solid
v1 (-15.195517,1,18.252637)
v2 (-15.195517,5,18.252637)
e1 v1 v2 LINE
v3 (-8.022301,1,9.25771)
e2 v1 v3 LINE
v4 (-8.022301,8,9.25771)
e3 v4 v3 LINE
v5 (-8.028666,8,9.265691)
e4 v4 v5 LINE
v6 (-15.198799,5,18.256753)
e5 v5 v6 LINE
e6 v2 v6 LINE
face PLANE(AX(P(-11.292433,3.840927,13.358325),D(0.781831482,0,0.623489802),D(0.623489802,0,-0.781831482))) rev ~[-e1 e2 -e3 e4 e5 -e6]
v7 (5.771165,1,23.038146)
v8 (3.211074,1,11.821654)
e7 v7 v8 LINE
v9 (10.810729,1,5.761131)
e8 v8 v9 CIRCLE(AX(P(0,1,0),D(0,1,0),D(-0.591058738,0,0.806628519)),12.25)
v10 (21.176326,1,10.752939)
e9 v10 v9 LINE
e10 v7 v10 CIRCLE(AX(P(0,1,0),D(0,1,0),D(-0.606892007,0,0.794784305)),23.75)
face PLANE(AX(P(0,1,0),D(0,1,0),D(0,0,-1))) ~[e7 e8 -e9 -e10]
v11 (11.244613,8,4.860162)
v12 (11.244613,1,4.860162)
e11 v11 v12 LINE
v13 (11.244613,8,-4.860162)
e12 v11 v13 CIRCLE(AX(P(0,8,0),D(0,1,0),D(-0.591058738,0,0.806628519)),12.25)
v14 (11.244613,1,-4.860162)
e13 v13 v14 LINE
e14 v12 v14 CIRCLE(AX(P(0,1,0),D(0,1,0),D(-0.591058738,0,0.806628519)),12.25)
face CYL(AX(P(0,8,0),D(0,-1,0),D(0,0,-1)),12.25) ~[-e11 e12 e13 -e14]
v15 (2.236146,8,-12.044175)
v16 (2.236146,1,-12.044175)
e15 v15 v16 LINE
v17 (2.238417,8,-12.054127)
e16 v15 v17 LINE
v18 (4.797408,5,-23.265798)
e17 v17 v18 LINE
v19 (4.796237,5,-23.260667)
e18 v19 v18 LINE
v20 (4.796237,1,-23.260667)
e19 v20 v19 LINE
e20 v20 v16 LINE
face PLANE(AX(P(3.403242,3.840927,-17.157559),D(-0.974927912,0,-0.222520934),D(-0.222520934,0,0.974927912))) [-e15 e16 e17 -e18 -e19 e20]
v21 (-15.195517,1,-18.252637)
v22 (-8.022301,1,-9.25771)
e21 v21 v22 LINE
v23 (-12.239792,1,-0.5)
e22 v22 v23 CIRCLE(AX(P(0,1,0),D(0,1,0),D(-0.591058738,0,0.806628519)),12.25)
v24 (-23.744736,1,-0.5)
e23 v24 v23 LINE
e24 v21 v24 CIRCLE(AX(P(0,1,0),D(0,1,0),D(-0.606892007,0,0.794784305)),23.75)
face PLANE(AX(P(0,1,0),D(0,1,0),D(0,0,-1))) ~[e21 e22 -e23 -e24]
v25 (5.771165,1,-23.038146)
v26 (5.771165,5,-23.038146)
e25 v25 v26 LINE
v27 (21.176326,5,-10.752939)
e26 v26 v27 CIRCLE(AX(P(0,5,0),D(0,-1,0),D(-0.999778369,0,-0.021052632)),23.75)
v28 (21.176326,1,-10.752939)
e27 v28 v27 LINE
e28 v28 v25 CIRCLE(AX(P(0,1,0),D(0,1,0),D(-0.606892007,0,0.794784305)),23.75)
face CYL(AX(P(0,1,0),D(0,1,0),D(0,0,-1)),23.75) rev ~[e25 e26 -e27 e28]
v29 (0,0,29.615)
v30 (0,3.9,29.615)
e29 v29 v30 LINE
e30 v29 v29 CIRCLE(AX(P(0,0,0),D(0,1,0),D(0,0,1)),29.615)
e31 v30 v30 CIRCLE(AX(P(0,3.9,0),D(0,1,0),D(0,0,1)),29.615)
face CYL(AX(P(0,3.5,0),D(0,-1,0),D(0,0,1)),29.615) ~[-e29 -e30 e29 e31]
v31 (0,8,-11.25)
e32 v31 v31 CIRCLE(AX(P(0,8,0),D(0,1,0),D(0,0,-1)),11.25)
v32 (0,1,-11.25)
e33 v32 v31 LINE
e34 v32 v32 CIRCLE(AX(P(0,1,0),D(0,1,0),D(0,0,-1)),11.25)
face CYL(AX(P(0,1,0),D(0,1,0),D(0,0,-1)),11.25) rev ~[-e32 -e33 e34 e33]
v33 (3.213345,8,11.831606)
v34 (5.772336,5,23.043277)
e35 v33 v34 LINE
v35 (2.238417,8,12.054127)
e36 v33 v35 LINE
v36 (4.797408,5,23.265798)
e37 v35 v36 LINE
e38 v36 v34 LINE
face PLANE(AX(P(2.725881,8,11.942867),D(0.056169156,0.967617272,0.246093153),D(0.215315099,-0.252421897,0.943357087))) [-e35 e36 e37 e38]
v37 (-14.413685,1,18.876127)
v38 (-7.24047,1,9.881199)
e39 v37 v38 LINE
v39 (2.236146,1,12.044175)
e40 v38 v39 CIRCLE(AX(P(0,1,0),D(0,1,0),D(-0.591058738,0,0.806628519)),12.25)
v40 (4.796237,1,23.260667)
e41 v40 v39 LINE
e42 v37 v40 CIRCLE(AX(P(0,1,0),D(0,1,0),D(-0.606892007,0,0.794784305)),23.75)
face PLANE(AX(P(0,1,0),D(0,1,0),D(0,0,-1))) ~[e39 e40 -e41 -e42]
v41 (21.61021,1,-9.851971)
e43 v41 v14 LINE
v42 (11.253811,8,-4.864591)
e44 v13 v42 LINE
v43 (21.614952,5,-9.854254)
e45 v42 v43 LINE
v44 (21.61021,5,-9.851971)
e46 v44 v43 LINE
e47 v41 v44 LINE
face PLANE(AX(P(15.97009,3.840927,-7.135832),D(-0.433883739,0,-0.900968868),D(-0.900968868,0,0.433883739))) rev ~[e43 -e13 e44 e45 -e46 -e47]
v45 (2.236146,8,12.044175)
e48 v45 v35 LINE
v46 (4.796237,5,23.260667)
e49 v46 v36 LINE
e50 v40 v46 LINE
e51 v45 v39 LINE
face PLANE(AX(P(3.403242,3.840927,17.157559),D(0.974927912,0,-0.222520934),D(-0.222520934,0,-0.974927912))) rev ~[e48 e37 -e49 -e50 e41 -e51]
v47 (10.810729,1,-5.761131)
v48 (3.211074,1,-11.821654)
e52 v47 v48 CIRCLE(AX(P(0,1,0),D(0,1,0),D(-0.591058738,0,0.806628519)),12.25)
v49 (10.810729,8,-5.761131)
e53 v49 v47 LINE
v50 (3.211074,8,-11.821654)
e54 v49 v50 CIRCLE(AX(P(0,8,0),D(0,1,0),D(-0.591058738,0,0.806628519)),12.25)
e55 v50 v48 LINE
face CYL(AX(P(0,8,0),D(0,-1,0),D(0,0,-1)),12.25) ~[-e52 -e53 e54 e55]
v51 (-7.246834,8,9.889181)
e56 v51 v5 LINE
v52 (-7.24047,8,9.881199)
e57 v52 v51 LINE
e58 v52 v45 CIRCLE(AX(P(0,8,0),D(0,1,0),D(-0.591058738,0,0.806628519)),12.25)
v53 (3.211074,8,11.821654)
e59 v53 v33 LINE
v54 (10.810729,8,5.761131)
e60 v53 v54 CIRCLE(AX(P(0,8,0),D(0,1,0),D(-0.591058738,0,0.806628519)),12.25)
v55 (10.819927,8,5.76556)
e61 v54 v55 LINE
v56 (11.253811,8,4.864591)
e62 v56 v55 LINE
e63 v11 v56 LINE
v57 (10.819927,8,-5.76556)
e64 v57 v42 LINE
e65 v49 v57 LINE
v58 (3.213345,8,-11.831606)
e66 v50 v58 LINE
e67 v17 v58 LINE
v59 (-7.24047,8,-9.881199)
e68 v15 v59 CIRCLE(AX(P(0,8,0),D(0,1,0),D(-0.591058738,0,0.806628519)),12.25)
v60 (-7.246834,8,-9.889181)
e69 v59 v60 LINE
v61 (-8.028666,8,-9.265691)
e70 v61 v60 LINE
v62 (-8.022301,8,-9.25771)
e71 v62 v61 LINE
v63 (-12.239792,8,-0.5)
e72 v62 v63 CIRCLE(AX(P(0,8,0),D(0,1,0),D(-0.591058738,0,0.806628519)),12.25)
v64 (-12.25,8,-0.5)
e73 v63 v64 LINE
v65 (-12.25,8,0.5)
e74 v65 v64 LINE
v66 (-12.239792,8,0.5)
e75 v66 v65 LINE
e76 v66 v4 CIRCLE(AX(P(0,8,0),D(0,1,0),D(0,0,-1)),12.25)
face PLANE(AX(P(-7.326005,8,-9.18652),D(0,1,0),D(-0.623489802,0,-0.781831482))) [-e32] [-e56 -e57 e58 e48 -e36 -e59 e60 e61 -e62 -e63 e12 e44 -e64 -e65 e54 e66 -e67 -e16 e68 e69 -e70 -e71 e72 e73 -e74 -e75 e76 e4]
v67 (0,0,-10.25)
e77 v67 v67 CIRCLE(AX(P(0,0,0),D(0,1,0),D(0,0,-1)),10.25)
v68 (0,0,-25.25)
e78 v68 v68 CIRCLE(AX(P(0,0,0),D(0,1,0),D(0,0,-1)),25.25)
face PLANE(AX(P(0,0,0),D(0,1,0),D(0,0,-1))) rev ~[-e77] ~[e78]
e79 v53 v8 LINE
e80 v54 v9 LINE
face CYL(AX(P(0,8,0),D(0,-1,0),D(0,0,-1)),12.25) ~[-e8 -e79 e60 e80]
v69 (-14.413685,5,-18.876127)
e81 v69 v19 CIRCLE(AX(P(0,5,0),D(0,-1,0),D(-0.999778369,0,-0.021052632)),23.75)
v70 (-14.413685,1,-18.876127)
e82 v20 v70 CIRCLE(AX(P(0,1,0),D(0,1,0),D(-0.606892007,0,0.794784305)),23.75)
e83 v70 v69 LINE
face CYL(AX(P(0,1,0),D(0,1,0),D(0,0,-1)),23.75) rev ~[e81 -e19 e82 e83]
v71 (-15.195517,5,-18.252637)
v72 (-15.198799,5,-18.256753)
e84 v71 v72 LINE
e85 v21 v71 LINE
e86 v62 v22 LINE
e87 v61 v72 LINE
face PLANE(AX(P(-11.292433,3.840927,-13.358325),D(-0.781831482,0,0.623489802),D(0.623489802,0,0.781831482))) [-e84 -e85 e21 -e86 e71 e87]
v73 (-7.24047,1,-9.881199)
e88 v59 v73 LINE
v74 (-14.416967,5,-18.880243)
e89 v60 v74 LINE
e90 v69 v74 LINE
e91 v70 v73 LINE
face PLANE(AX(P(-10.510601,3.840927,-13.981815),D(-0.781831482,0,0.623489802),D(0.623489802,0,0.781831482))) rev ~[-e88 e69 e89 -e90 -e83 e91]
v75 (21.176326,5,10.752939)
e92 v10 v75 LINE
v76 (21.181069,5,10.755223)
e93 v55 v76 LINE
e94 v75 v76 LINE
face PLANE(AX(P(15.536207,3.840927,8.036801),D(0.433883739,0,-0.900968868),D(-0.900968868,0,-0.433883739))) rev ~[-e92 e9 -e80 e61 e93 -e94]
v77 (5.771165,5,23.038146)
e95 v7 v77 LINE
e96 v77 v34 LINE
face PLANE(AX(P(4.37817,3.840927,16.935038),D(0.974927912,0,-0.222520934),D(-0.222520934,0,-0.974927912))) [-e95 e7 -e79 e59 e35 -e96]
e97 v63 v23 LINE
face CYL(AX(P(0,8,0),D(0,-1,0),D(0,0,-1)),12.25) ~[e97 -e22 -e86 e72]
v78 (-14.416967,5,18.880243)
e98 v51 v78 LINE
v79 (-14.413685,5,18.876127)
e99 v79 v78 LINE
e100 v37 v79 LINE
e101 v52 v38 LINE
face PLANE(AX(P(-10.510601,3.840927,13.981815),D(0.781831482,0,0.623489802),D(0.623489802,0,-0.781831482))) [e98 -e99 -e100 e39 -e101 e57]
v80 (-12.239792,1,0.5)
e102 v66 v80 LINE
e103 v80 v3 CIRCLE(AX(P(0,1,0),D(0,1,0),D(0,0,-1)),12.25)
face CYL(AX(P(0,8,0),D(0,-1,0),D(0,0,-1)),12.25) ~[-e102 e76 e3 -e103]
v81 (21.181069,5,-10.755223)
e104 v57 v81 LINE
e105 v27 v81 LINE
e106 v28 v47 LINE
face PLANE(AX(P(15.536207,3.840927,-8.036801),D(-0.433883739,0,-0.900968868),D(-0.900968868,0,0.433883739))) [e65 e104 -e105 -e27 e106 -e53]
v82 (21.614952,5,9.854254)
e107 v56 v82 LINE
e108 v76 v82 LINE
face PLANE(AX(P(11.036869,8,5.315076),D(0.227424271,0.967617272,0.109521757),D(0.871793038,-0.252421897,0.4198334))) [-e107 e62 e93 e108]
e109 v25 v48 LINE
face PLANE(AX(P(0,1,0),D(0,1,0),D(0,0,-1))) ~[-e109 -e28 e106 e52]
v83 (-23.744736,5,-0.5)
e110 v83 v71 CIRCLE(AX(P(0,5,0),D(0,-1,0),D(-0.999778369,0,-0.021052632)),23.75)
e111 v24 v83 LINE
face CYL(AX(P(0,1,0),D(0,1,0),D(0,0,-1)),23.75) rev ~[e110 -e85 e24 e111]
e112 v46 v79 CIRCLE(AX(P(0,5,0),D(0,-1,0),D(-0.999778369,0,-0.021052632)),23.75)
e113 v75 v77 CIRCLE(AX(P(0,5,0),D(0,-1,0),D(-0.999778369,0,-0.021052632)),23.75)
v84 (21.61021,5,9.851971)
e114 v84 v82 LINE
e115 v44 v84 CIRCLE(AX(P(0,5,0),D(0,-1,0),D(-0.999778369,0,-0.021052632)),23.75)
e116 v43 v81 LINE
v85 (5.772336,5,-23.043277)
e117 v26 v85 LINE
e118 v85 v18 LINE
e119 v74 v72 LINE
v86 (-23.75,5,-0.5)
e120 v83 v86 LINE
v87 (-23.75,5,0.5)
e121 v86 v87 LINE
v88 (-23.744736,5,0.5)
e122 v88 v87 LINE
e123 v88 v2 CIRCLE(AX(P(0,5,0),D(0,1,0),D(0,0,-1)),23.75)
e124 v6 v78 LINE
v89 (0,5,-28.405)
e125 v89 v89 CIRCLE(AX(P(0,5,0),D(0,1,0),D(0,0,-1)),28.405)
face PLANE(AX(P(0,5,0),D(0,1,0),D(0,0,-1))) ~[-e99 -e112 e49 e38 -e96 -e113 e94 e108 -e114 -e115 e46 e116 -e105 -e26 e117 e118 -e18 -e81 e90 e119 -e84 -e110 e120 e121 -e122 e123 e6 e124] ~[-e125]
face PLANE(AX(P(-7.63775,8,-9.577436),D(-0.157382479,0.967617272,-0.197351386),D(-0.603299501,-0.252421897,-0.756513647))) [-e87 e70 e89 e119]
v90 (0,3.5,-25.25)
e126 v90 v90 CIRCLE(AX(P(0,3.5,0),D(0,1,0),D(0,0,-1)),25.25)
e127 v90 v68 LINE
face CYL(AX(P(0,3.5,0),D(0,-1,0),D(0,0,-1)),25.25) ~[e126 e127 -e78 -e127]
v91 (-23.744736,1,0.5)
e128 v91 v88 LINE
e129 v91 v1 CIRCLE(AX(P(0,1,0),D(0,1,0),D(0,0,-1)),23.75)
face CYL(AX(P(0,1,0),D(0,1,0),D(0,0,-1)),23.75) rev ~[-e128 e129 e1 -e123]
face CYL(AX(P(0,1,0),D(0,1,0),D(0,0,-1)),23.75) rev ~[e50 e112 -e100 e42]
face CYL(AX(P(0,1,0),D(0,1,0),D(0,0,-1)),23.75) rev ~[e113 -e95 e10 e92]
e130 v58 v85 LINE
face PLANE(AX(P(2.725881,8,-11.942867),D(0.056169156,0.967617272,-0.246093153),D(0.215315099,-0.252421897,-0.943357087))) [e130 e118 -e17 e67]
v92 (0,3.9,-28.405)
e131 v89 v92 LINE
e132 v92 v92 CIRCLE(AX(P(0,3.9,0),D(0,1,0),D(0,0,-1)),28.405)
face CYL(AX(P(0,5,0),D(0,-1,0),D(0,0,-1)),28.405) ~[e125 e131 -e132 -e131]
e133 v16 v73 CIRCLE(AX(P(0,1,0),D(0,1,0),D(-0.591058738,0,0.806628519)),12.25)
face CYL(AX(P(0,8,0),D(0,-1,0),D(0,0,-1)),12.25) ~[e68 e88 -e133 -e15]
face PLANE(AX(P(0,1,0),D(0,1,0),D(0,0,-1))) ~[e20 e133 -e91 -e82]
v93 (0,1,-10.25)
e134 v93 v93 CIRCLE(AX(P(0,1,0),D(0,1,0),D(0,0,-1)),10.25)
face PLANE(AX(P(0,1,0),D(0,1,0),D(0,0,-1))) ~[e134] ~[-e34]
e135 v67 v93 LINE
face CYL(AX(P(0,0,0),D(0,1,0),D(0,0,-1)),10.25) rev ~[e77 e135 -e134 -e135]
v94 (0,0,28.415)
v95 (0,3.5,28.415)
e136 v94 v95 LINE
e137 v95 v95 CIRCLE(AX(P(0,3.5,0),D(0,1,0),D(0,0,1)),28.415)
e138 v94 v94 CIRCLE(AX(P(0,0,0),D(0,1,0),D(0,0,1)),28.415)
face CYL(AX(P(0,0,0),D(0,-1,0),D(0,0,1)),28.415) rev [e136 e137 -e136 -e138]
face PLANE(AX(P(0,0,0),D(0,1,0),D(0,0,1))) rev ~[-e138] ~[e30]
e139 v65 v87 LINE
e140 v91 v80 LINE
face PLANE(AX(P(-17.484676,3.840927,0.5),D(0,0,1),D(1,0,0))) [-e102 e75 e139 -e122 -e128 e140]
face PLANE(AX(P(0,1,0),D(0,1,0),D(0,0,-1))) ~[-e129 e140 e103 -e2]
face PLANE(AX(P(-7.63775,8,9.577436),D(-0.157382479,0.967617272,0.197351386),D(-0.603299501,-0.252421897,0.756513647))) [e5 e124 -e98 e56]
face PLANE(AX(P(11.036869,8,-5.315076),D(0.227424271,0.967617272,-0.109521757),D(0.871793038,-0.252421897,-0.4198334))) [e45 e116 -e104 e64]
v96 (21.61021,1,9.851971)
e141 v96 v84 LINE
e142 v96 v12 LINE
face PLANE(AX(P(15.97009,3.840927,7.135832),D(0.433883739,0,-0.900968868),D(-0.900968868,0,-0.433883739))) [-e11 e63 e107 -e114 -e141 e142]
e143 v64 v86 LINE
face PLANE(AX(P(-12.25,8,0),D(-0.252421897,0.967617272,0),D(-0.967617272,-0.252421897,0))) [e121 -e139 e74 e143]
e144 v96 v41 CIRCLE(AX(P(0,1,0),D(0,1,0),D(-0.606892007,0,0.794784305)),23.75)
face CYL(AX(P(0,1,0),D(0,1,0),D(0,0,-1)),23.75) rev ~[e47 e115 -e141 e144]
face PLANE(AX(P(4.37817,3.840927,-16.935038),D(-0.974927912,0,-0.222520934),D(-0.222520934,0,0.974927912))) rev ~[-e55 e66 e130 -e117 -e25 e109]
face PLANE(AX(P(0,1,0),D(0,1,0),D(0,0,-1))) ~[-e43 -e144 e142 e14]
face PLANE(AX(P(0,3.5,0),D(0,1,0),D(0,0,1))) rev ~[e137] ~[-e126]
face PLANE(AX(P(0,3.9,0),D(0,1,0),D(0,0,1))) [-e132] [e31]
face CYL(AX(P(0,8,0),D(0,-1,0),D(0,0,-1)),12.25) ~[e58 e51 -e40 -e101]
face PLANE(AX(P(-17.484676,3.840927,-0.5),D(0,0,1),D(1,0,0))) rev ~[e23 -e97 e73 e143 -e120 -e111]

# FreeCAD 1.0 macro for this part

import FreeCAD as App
import Part
import Sketcher
Q = App.Units.Quantity

doc = App.newDocument("Part")
body = doc.addObject("PartDesign::Body", "Body")

# Sketch on XY plane
sketch1 = doc.addObject("Sketcher::SketchObject", "Sketch")
body.addObject(sketch1)
sketch1.AttachmentSupport = (doc.XY_Plane, [""])
sketch1.MapMode = "FlatFace"
sketch1.addGeometry(Part.LineSegment(App.Vector(-11.2, 8, 0), App.Vector(-12.2, 8, 0)), False)
sketch1.addGeometry(Part.LineSegment(App.Vector(-12.2, 8, 0), App.Vector(-12.2, 1, 0)), False)
sketch1.addGeometry(Part.LineSegment(App.Vector(-12.2, 1, 0), App.Vector(-23.8, 1, 0)), False)
sketch1.addGeometry(Part.LineSegment(App.Vector(-23.8, 1, 0), App.Vector(-23.8, 5, 0)), False)
sketch1.addGeometry(Part.LineSegment(App.Vector(-23.8, 5, 0), App.Vector(-28.4, 5, 0)), False)
sketch1.addGeometry(Part.LineSegment(App.Vector(-28.4, 5, 0), App.Vector(-28.4, 3.5, 0)), False)
sketch1.addGeometry(Part.LineSegment(App.Vector(-28.4, 3.5, 0), App.Vector(-25.2, 3.5, 0)), False)
sketch1.addGeometry(Part.LineSegment(App.Vector(-25.2, 3.5, 0), App.Vector(-25.2, 0, 0)), False)
sketch1.addGeometry(Part.LineSegment(App.Vector(-25.2, 0, 0), App.Vector(-10.2, 0, 0)), False)
sketch1.addGeometry(Part.LineSegment(App.Vector(-10.2, 0, 0), App.Vector(-10.2, 1, 0)), False)
sketch1.addGeometry(Part.LineSegment(App.Vector(-10.2, 1, 0), App.Vector(-11.2, 1, 0)), False)
sketch1.addGeometry(Part.LineSegment(App.Vector(-11.2, 1, 0), App.Vector(-11.2, 8, 0)), False)
sketch1.addConstraint(Sketcher.Constraint("Coincident", 0, 2, 1, 1))
sketch1.addConstraint(Sketcher.Constraint("Coincident", 1, 2, 2, 1))
sketch1.addConstraint(Sketcher.Constraint("Coincident", 2, 2, 3, 1))
sketch1.addConstraint(Sketcher.Constraint("Coincident", 3, 2, 4, 1))
sketch1.addConstraint(Sketcher.Constraint("Coincident", 4, 2, 5, 1))
sketch1.addConstraint(Sketcher.Constraint("Coincident", 5, 2, 6, 1))
sketch1.addConstraint(Sketcher.Constraint("Coincident", 6, 2, 7, 1))
sketch1.addConstraint(Sketcher.Constraint("Coincident", 7, 2, 8, 1))
sketch1.addConstraint(Sketcher.Constraint("Coincident", 8, 2, 9, 1))
sketch1.addConstraint(Sketcher.Constraint("Coincident", 9, 2, 10, 1))
sketch1.addConstraint(Sketcher.Constraint("Coincident", 10, 2, 11, 1))
sketch1.addConstraint(Sketcher.Constraint("Coincident", 11, 2, 0, 1))
sketch1.addConstraint(Sketcher.Constraint("Horizontal", 0))
sketch1.addConstraint(Sketcher.Constraint("Vertical", 1))
sketch1.addConstraint(Sketcher.Constraint("Horizontal", 2))
sketch1.addConstraint(Sketcher.Constraint("Vertical", 3))
sketch1.addConstraint(Sketcher.Constraint("Horizontal", 4))
sketch1.addConstraint(Sketcher.Constraint("Vertical", 5))
sketch1.addConstraint(Sketcher.Constraint("Horizontal", 6))
sketch1.addConstraint(Sketcher.Constraint("Vertical", 7))
sketch1.addConstraint(Sketcher.Constraint("Horizontal", 8))
sketch1.addConstraint(Sketcher.Constraint("Vertical", 9))
sketch1.addConstraint(Sketcher.Constraint("Horizontal", 10))
sketch1.addConstraint(Sketcher.Constraint("Vertical", 11))
sketch1.addConstraint(Sketcher.Constraint("PointOnObject", 7, 2, -1))
sketch1.addConstraint(Sketcher.Constraint("Horizontal", 2, 2, 9, 2))
sketch1.addConstraint(Sketcher.Constraint("Equal", 0, 10))
sketch1.addConstraint(Sketcher.Constraint("Equal", 10, 9))
sketch1.addConstraint(Sketcher.Constraint("DistanceX", 0, 2, 0, 1, Q("1 mm")))
sketch1.addConstraint(Sketcher.Constraint("DistanceX", 8, 1, 8, 2, Q("15 mm")))
sketch1.addConstraint(Sketcher.Constraint("DistanceY", 1, 2, 1, 1, Q("7 mm")))
sketch1.addConstraint(Sketcher.Constraint("DistanceY", 3, 1, 3, 2, Q("4 mm")))
sketch1.addConstraint(Sketcher.Constraint("DistanceX", 2, 2, 2, 1, Q("11.5 mm")))
sketch1.addConstraint(Sketcher.Constraint("DistanceY", 5, 2, 5, 1, Q("1.5 mm")))
sketch1.addConstraint(Sketcher.Constraint("DistanceX", 4, 2, 4, 1, Q("4.655 mm")))
sketch1.addConstraint(Sketcher.Constraint("DistanceX", 0, 2, -1, 1, Q("12.25 mm")))
revolution = doc.addObject("PartDesign::Revolution", "Revolution")
body.addObject(revolution)
revolution.Profile = sketch1
revolution.ReferenceAxis = (sketch1, ["V_Axis"])
revolution.Angle = 360

# Sketch on XY plane
sketch2 = doc.addObject("Sketcher::SketchObject", "Sketch001")
body.addObject(sketch2)
sketch2.AttachmentSupport = (doc.XY_Plane, [""])
sketch2.MapMode = "FlatFace"
sketch2.addGeometry(Part.LineSegment(App.Vector(-12.2, 8, 0), App.Vector(-23.8, 5, 0)), False)
sketch2.addGeometry(Part.LineSegment(App.Vector(-23.8, 5, 0), App.Vector(-24.2, 5, 0)), False)
sketch2.addGeometry(Part.LineSegment(App.Vector(-24.2, 5, 0), App.Vector(-24.2, 1, 0)), False)
sketch2.addGeometry(Part.LineSegment(App.Vector(-24.2, 1, 0), App.Vector(-11.8, 1, 0)), False)
sketch2.addGeometry(Part.LineSegment(App.Vector(-11.8, 1, 0), App.Vector(-11.8, 8, 0)), False)
sketch2.addGeometry(Part.LineSegment(App.Vector(-11.8, 8, 0), App.Vector(-12.2, 8, 0)), False)
sketch2.addConstraint(Sketcher.Constraint("Coincident", 0, 2, 1, 1))
sketch2.addConstraint(Sketcher.Constraint("Coincident", 1, 2, 2, 1))
sketch2.addConstraint(Sketcher.Constraint("Coincident", 2, 2, 3, 1))
sketch2.addConstraint(Sketcher.Constraint("Coincident", 3, 2, 4, 1))
sketch2.addConstraint(Sketcher.Constraint("Coincident", 4, 2, 5, 1))
sketch2.addConstraint(Sketcher.Constraint("Coincident", 5, 2, 0, 1))
sketch2.addConstraint(Sketcher.Constraint("Horizontal", 1))
sketch2.addConstraint(Sketcher.Constraint("Vertical", 2))
sketch2.addConstraint(Sketcher.Constraint("Horizontal", 3))
sketch2.addConstraint(Sketcher.Constraint("Vertical", 4))
sketch2.addConstraint(Sketcher.Constraint("Horizontal", 5))
sketch2.addConstraint(Sketcher.Constraint("Equal", 1, 5))
sketch2.addConstraint(Sketcher.Constraint("DistanceY", 2, 2, 2, 1, Q("4 mm")))
sketch2.addConstraint(Sketcher.Constraint("DistanceY", 4, 1, 4, 2, Q("7 mm")))
sketch2.addConstraint(Sketcher.Constraint("DistanceX", 1, 2, 1, 1, Q("0.5 mm")))
sketch2.addConstraint(Sketcher.Constraint("DistanceX", 3, 1, 3, 2, Q("12.5 mm")))
sketch2.addConstraint(Sketcher.Constraint("DistanceY", -1, 1, 0, 2, Q("5 mm")))
sketch2.addConstraint(Sketcher.Constraint("DistanceX", 0, 2, -1, 1, Q("23.75 mm")))
pad1 = doc.addObject("PartDesign::Pad", "Pad")
body.addObject(pad1)
pad1.Profile = sketch2
pad1.Length = 1
pad1.Midplane = True
doc.recompute()

polarpattern = doc.addObject("PartDesign::PolarPattern", "PolarPattern")
body.addObject(polarpattern)
polarpattern.Originals = [pad1]
polarpattern.Axis = (doc.Y_Axis, [""])
polarpattern.Angle = 360
polarpattern.Occurrences = 7
body.Tip = polarpattern
body2 = doc.addObject("PartDesign::Body", "Body001")

# Sketch on XZ plane
sketch3 = doc.addObject("Sketcher::SketchObject", "Sketch002")
body2.addObject(sketch3)
sketch3.AttachmentSupport = (doc.getObject("XZ_Plane001"), [""])
sketch3.MapMode = "FlatFace"
sketch3.addGeometry(Part.Circle(App.Vector(0, 0, 0), App.Vector(0, 0, 1), 30), False)
sketch3.addGeometry(Part.Circle(App.Vector(0, 0, 0), App.Vector(0, 0, 1), 28), False)
sketch3.addConstraint(Sketcher.Constraint("Coincident", 0, 3, -1, 1))
sketch3.addConstraint(Sketcher.Constraint("Coincident", 1, 3, -1, 1))
sketch3.addConstraint(Sketcher.Constraint("Diameter", 0, Q("59.23 mm")))
sketch3.addConstraint(Sketcher.Constraint("Diameter", 1, Q("56.83 mm")))
pad2 = doc.addObject("PartDesign::Pad", "Pad001")
body2.addObject(pad2)
pad2.Profile = sketch3
pad2.Length = 3.5
pad2.Reversed = True
body.AllowCompound = True
doc.recompute()

boolean = doc.addObject("PartDesign::Boolean", "Boolean")
body.addObject(boolean)
boolean.Type = "Fuse"
boolean.addObjects([body2])

# Sketch on XZ plane
sketch4 = doc.addObject("Sketcher::SketchObject", "Sketch003")
body.addObject(sketch4)
sketch4.AttachmentSupport = (doc.XZ_Plane, [""])
sketch4.MapMode = "FlatFace"
sketch4.AttachmentOffset = App.Placement(App.Vector(0, 0, -3.5), App.Rotation())
sketch4.addGeometry(Part.Circle(App.Vector(0, 0, 0), App.Vector(0, 0, 1), 30), False)
sketch4.addGeometry(Part.Circle(App.Vector(0, 0, 0), App.Vector(0, 0, 1), 28), False)
sketch4.addConstraint(Sketcher.Constraint("Coincident", 0, 3, -1, 1))
sketch4.addConstraint(Sketcher.Constraint("Coincident", 1, 3, -1, 1))
sketch4.addConstraint(Sketcher.Constraint("Diameter", 0, Q("59.23 mm")))
sketch4.addConstraint(Sketcher.Constraint("Diameter", 1, Q("56.81 mm")))
pad3 = doc.addObject("PartDesign::Pad", "Pad002")
body.addObject(pad3)
pad3.Profile = sketch4
pad3.Length = 0.4
pad3.Reversed = True

doc.recompute()
